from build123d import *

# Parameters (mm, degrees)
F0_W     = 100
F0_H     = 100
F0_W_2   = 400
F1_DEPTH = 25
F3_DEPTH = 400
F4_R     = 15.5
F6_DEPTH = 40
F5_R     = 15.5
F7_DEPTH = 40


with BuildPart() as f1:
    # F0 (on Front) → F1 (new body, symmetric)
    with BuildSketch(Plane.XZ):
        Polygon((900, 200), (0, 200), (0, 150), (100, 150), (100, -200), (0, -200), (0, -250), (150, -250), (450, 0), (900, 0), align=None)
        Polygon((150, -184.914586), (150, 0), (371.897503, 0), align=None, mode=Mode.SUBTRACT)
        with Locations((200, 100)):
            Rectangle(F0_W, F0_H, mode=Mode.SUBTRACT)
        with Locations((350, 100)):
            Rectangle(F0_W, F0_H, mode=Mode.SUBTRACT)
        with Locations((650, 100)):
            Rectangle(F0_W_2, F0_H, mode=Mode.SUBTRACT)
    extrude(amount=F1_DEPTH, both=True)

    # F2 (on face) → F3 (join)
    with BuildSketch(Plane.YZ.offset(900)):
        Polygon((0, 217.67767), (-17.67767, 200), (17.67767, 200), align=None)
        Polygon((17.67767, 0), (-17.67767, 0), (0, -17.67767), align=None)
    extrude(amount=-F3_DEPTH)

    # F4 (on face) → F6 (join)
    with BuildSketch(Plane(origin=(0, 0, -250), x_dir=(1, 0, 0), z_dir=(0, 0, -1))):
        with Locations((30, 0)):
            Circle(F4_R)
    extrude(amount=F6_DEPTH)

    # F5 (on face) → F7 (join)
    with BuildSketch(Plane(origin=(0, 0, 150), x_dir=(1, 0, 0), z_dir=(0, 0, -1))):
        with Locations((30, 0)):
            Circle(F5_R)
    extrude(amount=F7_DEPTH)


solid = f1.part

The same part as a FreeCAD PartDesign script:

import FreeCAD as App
import Part
import Sketcher
Q = App.Units.Quantity

doc = App.newDocument("Part")
body = doc.addObject("PartDesign::Body", "Body")

sketch1 = body.newObject("Sketcher::SketchObject", "Sketch")
sketch1.AttachmentSupport = (doc.getObject("XZ_Plane"), [""])
sketch1.MapMode = "FlatFace"
sketch1.addGeometry([
    Part.LineSegment(App.Vector(900, 200, 0), App.Vector(0, 200, 0)),
    Part.LineSegment(App.Vector(0, 200, 0), App.Vector(0, 150, 0)),
    Part.LineSegment(App.Vector(0, 150, 0), App.Vector(100, 150, 0)),
    Part.LineSegment(App.Vector(100, 150, 0), App.Vector(100, -200, 0)),
    Part.LineSegment(App.Vector(100, -200, 0), App.Vector(0, -200, 0)),
    Part.LineSegment(App.Vector(0, -200, 0), App.Vector(0, -250, 0)),
    Part.LineSegment(App.Vector(0, -250, 0), App.Vector(150, -250, 0)),
    Part.LineSegment(App.Vector(150, -250, 0), App.Vector(450, 0, 0)),
    Part.LineSegment(App.Vector(450, 0, 0), App.Vector(900, 0, 0)),
    Part.LineSegment(App.Vector(900, 0, 0), App.Vector(900, 200, 0)),
    Part.LineSegment(App.Vector(372, 0, 0), App.Vector(150, -185, 0)),
    Part.LineSegment(App.Vector(150, -185, 0), App.Vector(150, 0, 0)),
    Part.LineSegment(App.Vector(150, 0, 0), App.Vector(372, 0, 0)),
    Part.LineSegment(App.Vector(250, 50, 0), App.Vector(150, 50, 0)),
    Part.LineSegment(App.Vector(150, 50, 0), App.Vector(150, 150, 0)),
    Part.LineSegment(App.Vector(150, 150, 0), App.Vector(250, 150, 0)),
    Part.LineSegment(App.Vector(250, 150, 0), App.Vector(250, 50, 0)),
    Part.LineSegment(App.Vector(400, 50, 0), App.Vector(300, 50, 0)),
    Part.LineSegment(App.Vector(300, 50, 0), App.Vector(300, 150, 0)),
    Part.LineSegment(App.Vector(300, 150, 0), App.Vector(400, 150, 0)),
    Part.LineSegment(App.Vector(400, 150, 0), App.Vector(400, 50, 0)),
    Part.LineSegment(App.Vector(850, 50, 0), App.Vector(450, 50, 0)),
    Part.LineSegment(App.Vector(450, 50, 0), App.Vector(450, 150, 0)),
    Part.LineSegment(App.Vector(450, 150, 0), App.Vector(850, 150, 0)),
    Part.LineSegment(App.Vector(850, 150, 0), App.Vector(850, 50, 0)),
], False)
sketch1.addConstraint([
    Sketcher.Constraint("Coincident", 0, 2, 1, 1),
    Sketcher.Constraint("Coincident", 1, 2, 2, 1),
    Sketcher.Constraint("Coincident", 2, 2, 3, 1),
    Sketcher.Constraint("Coincident", 3, 2, 4, 1),
    Sketcher.Constraint("Coincident", 4, 2, 5, 1),
    Sketcher.Constraint("Coincident", 5, 2, 6, 1),
    Sketcher.Constraint("Coincident", 6, 2, 7, 1),
    Sketcher.Constraint("Coincident", 7, 2, 8, 1),
    Sketcher.Constraint("Coincident", 8, 2, 9, 1),
    Sketcher.Constraint("Coincident", 9, 2, 0, 1),
    Sketcher.Constraint("Coincident", 10, 2, 11, 1),
    Sketcher.Constraint("Coincident", 11, 2, 12, 1),
    Sketcher.Constraint("Coincident", 12, 2, 10, 1),
    Sketcher.Constraint("Coincident", 13, 2, 14, 1),
    Sketcher.Constraint("Coincident", 14, 2, 15, 1),
    Sketcher.Constraint("Coincident", 15, 2, 16, 1),
    Sketcher.Constraint("Coincident", 16, 2, 13, 1),
    Sketcher.Constraint("Coincident", 17, 2, 18, 1),
    Sketcher.Constraint("Coincident", 18, 2, 19, 1),
    Sketcher.Constraint("Coincident", 19, 2, 20, 1),
    Sketcher.Constraint("Coincident", 20, 2, 17, 1),
    Sketcher.Constraint("Coincident", 21, 2, 22, 1),
    Sketcher.Constraint("Coincident", 22, 2, 23, 1),
    Sketcher.Constraint("Coincident", 23, 2, 24, 1),
    Sketcher.Constraint("Coincident", 24, 2, 21, 1),
    Sketcher.Constraint("Horizontal", 0),
    Sketcher.Constraint("Vertical", 1),
    Sketcher.Constraint("Horizontal", 2),
    Sketcher.Constraint("Vertical", 3),
    Sketcher.Constraint("Horizontal", 4),
    Sketcher.Constraint("Vertical", 5),
    Sketcher.Constraint("Horizontal", 6),
    Sketcher.Constraint("Horizontal", 8),
    Sketcher.Constraint("Vertical", 9),
    Sketcher.Constraint("Vertical", 11),
    Sketcher.Constraint("Horizontal", 12),
    Sketcher.Constraint("Horizontal", 13),
    Sketcher.Constraint("Vertical", 14),
    Sketcher.Constraint("Horizontal", 15),
    Sketcher.Constraint("Vertical", 16),
    Sketcher.Constraint("Horizontal", 17),
    Sketcher.Constraint("Vertical", 18),
    Sketcher.Constraint("Horizontal", 19),
    Sketcher.Constraint("Vertical", 20),
    Sketcher.Constraint("Horizontal", 21),
    Sketcher.Constraint("Vertical", 22),
    Sketcher.Constraint("Horizontal", 23),
    Sketcher.Constraint("Vertical", 24),
    Sketcher.Constraint("Symmetric", 0, 2, 4, 2, -1, 1),
    Sketcher.Constraint("PointOnObject", 0, 2, -2),
    Sketcher.Constraint("PointOnObject", 7, 2, -1),
    Sketcher.Constraint("PointOnObject", 11, 2, -1),
    Sketcher.Constraint("Parallel", 7, 10),
    Sketcher.Constraint("Horizontal", 2, 2, 14, 2),
    Sketcher.Constraint("Horizontal", 16, 2, 17, 2),
    Sketcher.Constraint("Horizontal", 15, 2, 18, 2),
    Sketcher.Constraint("Horizontal", 20, 2, 21, 2),
    Sketcher.Constraint("Horizontal", 19, 2, 22, 2),
    Sketcher.Constraint("Vertical", 6, 2, 10, 2),
    Sketcher.Constraint("Vertical", 11, 2, 13, 2),
    Sketcher.Constraint("Vertical", 7, 2, 21, 2),
    Sketcher.Constraint("Equal", 4, 13),
    Sketcher.Constraint("Equal", 15, 17),
    Sketcher.Constraint("Equal", 1, 5),
    Sketcher.Constraint("Equal", 19, 14),
    Sketcher.Constraint("DistanceX", 0, 2, 0, 1, Q("900 mm")),
    Sketcher.Constraint("DistanceX", 2, 1, 2, 2, Q("100 mm")),
    Sketcher.Constraint("DistanceX", 6, 1, 6, 2, Q("150 mm")),
    Sketcher.Constraint("DistanceX", 8, 1, 8, 2, Q("450 mm")),
    Sketcher.Constraint("DistanceX", 21, 2, 21, 1, Q("400 mm")),
    Sketcher.Constraint("DistanceY", 1, 2, 1, 1, Q("50 mm")),
    Sketcher.Constraint("DistanceY", 3, 2, 3, 1, Q("350 mm")),
    Sketcher.Constraint("DistanceX", -1, 1, 17, 2, Q("300 mm")),
    Sketcher.Constraint("DistanceX", 12, 1, 12, 2, Q("221.897503 mm")),
])
pad1 = body.newObject("PartDesign::Pad", "Pad")
pad1.Profile = sketch1
pad1.Length = 50
pad1.Midplane = True

sketch2 = body.newObject("Sketcher::SketchObject", "Sketch001")
sketch2.AttachmentSupport = (doc.getObject("YZ_Plane"), [""])
sketch2.MapMode = "FlatFace"
sketch2.AttachmentOffset = App.Placement(App.Vector(0, 0, 900), App.Rotation())
sketch2.addGeometry([
    Part.LineSegment(App.Vector(0, 218, 0), App.Vector(-18, 200, 0)),
    Part.LineSegment(App.Vector(-18, 200, 0), App.Vector(18, 200, 0)),
    Part.LineSegment(App.Vector(18, 200, 0), App.Vector(0, 218, 0)),
    Part.LineSegment(App.Vector(18, 0, 0), App.Vector(-18, 0, 0)),
    Part.LineSegment(App.Vector(-18, 0, 0), App.Vector(0, -18, 0)),
    Part.LineSegment(App.Vector(0, -18, 0), App.Vector(18, 0, 0)),
], False)
sketch2.addConstraint([
    Sketcher.Constraint("Coincident", 0, 2, 1, 1),
    Sketcher.Constraint("Coincident", 1, 2, 2, 1),
    Sketcher.Constraint("Coincident", 2, 2, 0, 1),
    Sketcher.Constraint("Coincident", 3, 2, 4, 1),
    Sketcher.Constraint("Coincident", 4, 2, 5, 1),
    Sketcher.Constraint("Coincident", 5, 2, 3, 1),
    Sketcher.Constraint("Horizontal", 1),
    Sketcher.Constraint("Horizontal", 3),
    Sketcher.Constraint("Symmetric", 3, 2, 5, 2, -1, 1),
    Sketcher.Constraint("PointOnObject", 2, 2, -2),
    Sketcher.Constraint("PointOnObject", 4, 2, -2),
    Sketcher.Constraint("Perpendicular", 0, 2),
    Sketcher.Constraint("Parallel", 2, 4),
    Sketcher.Constraint("Perpendicular", 4, 5),
    Sketcher.Constraint("Vertical", 0, 2, 3, 2),
    Sketcher.Constraint("Distance", 0, Q("25.000001 mm")),
    Sketcher.Constraint("DistanceY", -1, 1, 0, 2, Q("200 mm")),
])
pad2 = body.newObject("PartDesign::Pad", "Pad001")
pad2.Profile = sketch2
pad2.Length = 400
pad2.Reversed = True

sketch3 = body.newObject("Sketcher::SketchObject", "Sketch002")
sketch3.AttachmentSupport = (doc.getObject("XY_Plane"), [""])
sketch3.MapMode = "FlatFace"
sketch3.AttachmentOffset = App.Placement(App.Vector(0, 0, -250), App.Rotation())
sketch3.addGeometry(Part.Circle(App.Vector(30, 0, 0), App.Vector(0, 0, 1), 16), False)
sketch3.addConstraint([
    Sketcher.Constraint("PointOnObject", 0, 3, -1),
    Sketcher.Constraint("Diameter", 0, Q("31 mm")),
    Sketcher.Constraint("DistanceX", -1, 1, 0, 3, Q("30 mm")),
])
pad3 = body.newObject("PartDesign::Pad", "Pad002")
pad3.Profile = sketch3
pad3.Length = 40
pad3.Reversed = True

sketch4 = body.newObject("Sketcher::SketchObject", "Sketch003")
sketch4.AttachmentSupport = (doc.getObject("XY_Plane"), [""])
sketch4.MapMode = "FlatFace"
sketch4.AttachmentOffset = App.Placement(App.Vector(0, 0, 150), App.Rotation())
sketch4.addGeometry(Part.Circle(App.Vector(30, 0, 0), App.Vector(0, 0, 1), 16), False)
sketch4.addConstraint([
    Sketcher.Constraint("PointOnObject", 0, 3, -1),
    Sketcher.Constraint("Diameter", 0, Q("31 mm")),
    Sketcher.Constraint("DistanceX", -1, 1, 0, 3, Q("30 mm")),
])
pad4 = body.newObject("PartDesign::Pad", "Pad003")
pad4.Profile = sketch4
pad4.Length = 40
pad4.Reversed = True

doc.recompute()
